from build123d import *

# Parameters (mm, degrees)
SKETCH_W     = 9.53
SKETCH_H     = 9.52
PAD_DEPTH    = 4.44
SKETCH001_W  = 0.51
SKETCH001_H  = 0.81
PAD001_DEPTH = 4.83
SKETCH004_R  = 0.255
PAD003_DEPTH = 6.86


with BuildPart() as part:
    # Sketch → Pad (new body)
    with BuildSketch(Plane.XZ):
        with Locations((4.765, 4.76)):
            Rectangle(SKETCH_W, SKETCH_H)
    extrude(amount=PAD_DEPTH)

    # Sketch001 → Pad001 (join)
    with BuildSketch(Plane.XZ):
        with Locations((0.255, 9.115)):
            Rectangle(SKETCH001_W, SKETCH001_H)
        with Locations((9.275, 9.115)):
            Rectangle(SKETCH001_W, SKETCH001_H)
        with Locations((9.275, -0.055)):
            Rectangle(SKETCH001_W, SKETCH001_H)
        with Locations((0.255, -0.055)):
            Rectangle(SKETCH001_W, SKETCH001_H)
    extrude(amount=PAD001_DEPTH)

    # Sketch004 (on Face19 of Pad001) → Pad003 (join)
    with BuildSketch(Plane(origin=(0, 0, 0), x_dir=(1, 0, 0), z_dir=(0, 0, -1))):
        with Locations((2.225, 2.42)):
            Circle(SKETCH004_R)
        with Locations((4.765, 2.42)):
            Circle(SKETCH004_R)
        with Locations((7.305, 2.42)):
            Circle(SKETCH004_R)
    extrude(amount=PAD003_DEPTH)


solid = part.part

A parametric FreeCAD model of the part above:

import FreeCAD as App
import Part
import Sketcher
Q = App.Units.Quantity


def add_polygon(sketch, points):
    """Adds a closed chain of lines whose ends are joined by coincident constraints."""
    first, n = sketch.GeometryCount, len(points)
    for a, b in zip(points, points[1:] + points[:1]):
        sketch.addGeometry(Part.LineSegment(App.Vector(*a, 0), App.Vector(*b, 0)), False)
    for i in range(n):
        sketch.addConstraint(Sketcher.Constraint("Coincident", first + i, 2, first + (i + 1) % n, 1))

doc = App.newDocument("Part")
body = doc.addObject("PartDesign::Body", "Body")

sketch1 = doc.addObject("Sketcher::SketchObject", "Sketch")
body.addObject(sketch1)
sketch1.AttachmentSupport = (doc.XZ_Plane, [""])
sketch1.MapMode = "FlatFace"
add_polygon(sketch1, [(0, 9.52), (0, 0), (9.53, 0), (9.53, 9.52)])
sketch1.addConstraint([
    Sketcher.Constraint("Vertical", 0),
    Sketcher.Constraint("Horizontal", 1),
    Sketcher.Constraint("Vertical", 2),
    Sketcher.Constraint("Horizontal", 3),
    Sketcher.Constraint("Coincident", 0, 2, -1, 1),
    Sketcher.Constraint("DistanceX", 1, 1, 1, 2, Q("9.53 mm")),
    Sketcher.Constraint("DistanceY", 0, 2, 0, 1, Q("9.52 mm")),
])
pad1 = doc.addObject("PartDesign::Pad", "Pad")
body.addObject(pad1)
pad1.Profile = sketch1
pad1.Length = 4.44

sketch2 = doc.addObject("Sketcher::SketchObject", "Sketch001")
body.addObject(sketch2)
sketch2.AttachmentSupport = (doc.XZ_Plane, [""])
sketch2.MapMode = "FlatFace"
add_polygon(sketch2, [(0, 9.52), (0, 8.71), (0.51, 8.71), (0.51, 9.52)])
add_polygon(sketch2, [(9.02, 9.52), (9.02, 8.71), (9.53, 8.71), (9.53, 9.52)])
add_polygon(sketch2, [(9.02, 0.35), (9.02, -0.46), (9.53, -0.46), (9.53, 0.35)])
add_polygon(sketch2, [(0, 0.35), (0, -0.46), (0.51, -0.46), (0.51, 0.35)])
sketch2.addConstraint([
    Sketcher.Constraint("Vertical", 0),
    Sketcher.Constraint("Horizontal", 1),
    Sketcher.Constraint("Vertical", 2),
    Sketcher.Constraint("Horizontal", 3),
    Sketcher.Constraint("Vertical", 4),
    Sketcher.Constraint("Horizontal", 5),
    Sketcher.Constraint("Vertical", 6),
    Sketcher.Constraint("Horizontal", 7),
    Sketcher.Constraint("Vertical", 8),
    Sketcher.Constraint("Horizontal", 9),
    Sketcher.Constraint("Vertical", 10),
    Sketcher.Constraint("Horizontal", 11),
    Sketcher.Constraint("Vertical", 12),
    Sketcher.Constraint("Horizontal", 13),
    Sketcher.Constraint("Vertical", 14),
    Sketcher.Constraint("Horizontal", 15),
    Sketcher.Constraint("PointOnObject", 0, 2, -2),
    Sketcher.Constraint("PointOnObject", 12, 2, -2),
    Sketcher.Constraint("Horizontal", 1, 2, 4, 2),
    Sketcher.Constraint("Horizontal", 3, 2, 6, 2),
    Sketcher.Constraint("Horizontal", 9, 2, 12, 2),
    Sketcher.Constraint("Horizontal", 11, 2, 14, 2),
    Sketcher.Constraint("Vertical", 7, 2, 8, 2),
    Sketcher.Constraint("Vertical", 6, 2, 9, 2),
    Sketcher.Constraint("Vertical", 2, 2, 13, 2),
    Sketcher.Constraint("Equal", 3, 5),
    Sketcher.Constraint("Equal", 6, 8),
    Sketcher.Constraint("DistanceX", 1, 1, 1, 2, Q("0.51 mm")),
    Sketcher.Constraint("DistanceY", 0, 2, 0, 1, Q("0.81 mm")),
    Sketcher.Constraint("DistanceY", -1, 1, 0, 2, Q("8.71 mm")),
    Sketcher.Constraint("DistanceX", -1, 1, 4, 2, Q("9.02 mm")),
    Sketcher.Constraint("DistanceY", 8, 2, -1, 1, Q("0.46 mm")),
])
pad2 = doc.addObject("PartDesign::Pad", "Pad001")
body.addObject(pad2)
pad2.Profile = sketch2
pad2.Length = 4.83

sketch3 = doc.addObject("Sketcher::SketchObject", "Sketch002")
body.addObject(sketch3)
sketch3.AttachmentSupport = (doc.XY_Plane, [""])
sketch3.MapMode = "FlatFace"
sketch3.addGeometry([
    Part.Circle(App.Vector(2.225, -2.42, 0), App.Vector(0, 0, 1), 0.255),
    Part.Circle(App.Vector(4.765, -2.42, 0), App.Vector(0, 0, 1), 0.255),
    Part.Circle(App.Vector(7.305, -2.42, 0), App.Vector(0, 0, 1), 0.255),
], False)
sketch3.addConstraint([
    Sketcher.Constraint("Equal", 0, 1),
    Sketcher.Constraint("Equal", 1, 2),
    Sketcher.Constraint("Horizontal", 0, 3, 1, 3),
    Sketcher.Constraint("Horizontal", 1, 3, 2, 3),
    Sketcher.Constraint("Diameter", 0, Q("0.51 mm")),
    Sketcher.Constraint("DistanceY", 0, 3, -1, 1, Q("2.42 mm")),
    Sketcher.Constraint("DistanceX", 0, 3, 1, 3, Q("2.54 mm")),
    Sketcher.Constraint("DistanceX", 1, 3, 2, 3, Q("2.54 mm")),
    Sketcher.Constraint("DistanceX", -1, 1, 0, 3, Q("2.225 mm")),
])
pad3 = doc.addObject("PartDesign::Pad", "Pad002")
body.addObject(pad3)
pad3.Profile = sketch3
pad3.Length = 6.86
pad3.Reversed = True

doc.recompute()
